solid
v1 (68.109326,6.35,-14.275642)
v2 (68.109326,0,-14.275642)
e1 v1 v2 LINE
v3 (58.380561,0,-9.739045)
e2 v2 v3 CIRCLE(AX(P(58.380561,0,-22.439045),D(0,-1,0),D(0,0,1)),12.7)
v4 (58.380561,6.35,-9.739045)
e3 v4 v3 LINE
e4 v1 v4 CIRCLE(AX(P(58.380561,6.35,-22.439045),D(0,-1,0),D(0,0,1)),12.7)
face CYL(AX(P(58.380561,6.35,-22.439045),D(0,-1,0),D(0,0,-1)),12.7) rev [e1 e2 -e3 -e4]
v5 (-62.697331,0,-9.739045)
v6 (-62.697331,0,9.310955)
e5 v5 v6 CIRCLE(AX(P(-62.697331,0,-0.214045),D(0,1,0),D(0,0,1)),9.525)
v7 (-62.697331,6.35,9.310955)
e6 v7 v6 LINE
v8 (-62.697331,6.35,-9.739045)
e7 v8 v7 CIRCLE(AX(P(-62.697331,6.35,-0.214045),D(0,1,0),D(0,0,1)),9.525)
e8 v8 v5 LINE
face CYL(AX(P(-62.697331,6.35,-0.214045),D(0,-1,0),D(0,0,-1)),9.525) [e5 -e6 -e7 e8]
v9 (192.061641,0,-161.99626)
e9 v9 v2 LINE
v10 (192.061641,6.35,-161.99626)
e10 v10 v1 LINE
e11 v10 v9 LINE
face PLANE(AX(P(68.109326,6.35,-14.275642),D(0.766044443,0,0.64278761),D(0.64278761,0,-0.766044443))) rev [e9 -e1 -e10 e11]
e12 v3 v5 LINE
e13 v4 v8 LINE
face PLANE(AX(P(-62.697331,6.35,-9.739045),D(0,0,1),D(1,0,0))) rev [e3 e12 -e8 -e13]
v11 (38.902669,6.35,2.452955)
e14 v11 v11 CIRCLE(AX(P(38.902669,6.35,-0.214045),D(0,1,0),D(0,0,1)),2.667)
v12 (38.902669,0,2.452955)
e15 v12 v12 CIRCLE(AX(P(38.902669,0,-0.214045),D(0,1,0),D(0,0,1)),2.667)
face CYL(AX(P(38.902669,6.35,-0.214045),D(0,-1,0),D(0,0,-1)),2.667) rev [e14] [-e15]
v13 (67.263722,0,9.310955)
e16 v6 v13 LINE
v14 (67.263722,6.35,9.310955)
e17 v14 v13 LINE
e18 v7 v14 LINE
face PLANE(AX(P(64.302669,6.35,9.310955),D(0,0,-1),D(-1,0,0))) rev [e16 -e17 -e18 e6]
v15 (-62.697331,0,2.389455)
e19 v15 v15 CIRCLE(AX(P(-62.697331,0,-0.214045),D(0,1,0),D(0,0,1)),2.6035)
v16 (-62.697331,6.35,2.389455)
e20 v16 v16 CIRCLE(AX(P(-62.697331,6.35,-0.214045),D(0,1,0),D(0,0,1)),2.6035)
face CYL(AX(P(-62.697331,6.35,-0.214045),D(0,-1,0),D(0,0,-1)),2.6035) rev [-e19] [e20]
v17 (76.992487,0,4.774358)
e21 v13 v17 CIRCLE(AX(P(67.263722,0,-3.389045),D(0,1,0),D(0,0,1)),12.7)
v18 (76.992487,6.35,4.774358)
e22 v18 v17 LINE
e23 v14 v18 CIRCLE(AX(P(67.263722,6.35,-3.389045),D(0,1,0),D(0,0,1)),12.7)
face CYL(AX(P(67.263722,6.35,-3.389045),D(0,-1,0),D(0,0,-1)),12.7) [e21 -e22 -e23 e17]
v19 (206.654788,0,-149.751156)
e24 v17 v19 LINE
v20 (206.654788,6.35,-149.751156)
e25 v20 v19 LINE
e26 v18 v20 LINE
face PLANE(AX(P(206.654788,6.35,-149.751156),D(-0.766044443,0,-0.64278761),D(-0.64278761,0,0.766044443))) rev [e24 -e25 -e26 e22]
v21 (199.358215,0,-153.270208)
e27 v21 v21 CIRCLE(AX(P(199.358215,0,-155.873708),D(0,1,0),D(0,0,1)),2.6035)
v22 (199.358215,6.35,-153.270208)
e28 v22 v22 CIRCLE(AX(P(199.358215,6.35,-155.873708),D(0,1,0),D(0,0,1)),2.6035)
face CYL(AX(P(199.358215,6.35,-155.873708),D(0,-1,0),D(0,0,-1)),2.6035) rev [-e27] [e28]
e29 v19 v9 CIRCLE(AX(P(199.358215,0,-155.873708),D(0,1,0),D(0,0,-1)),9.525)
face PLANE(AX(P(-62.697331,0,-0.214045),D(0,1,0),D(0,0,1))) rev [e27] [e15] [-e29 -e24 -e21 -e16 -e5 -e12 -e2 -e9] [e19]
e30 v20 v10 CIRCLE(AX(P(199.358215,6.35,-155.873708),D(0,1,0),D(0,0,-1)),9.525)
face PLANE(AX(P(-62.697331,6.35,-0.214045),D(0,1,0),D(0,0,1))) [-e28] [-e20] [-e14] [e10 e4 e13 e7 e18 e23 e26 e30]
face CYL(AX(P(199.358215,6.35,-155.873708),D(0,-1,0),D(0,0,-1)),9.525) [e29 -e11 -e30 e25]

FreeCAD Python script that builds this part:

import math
import FreeCAD as App
import Part
import Sketcher
from FreeCAD import Vector
Q = App.Units.Quantity

doc = App.newDocument("Part")
body = doc.addObject("PartDesign::Body", "Body")

sketch1 = body.newObject("Sketcher::SketchObject", "Sketch")
sketch1.AttachmentSupport = (doc.getObject("XZ_Plane"), [""])
sketch1.MapMode = "FlatFace"
sketch1.addGeometry(Part.LineSegment(Vector(192.1, -162, 0), Vector(68.1, -14.3, 0)), False)
sketch1.addGeometry(Part.ArcOfCircle(Part.Circle(Vector(58.4, -22.4, 0), Vector(0, 0, 1), 12.7), math.radians(40), math.radians(90)), False)
sketch1.addGeometry(Part.LineSegment(Vector(58.4, -9.7, 0), Vector(-62.7, -9.7, 0)), False)
sketch1.addGeometry(Part.ArcOfCircle(Part.Circle(Vector(-62.7, -0.2, 0), Vector(0, 0, 1), 9.5), math.radians(90), math.radians(270)), False)
sketch1.addGeometry(Part.LineSegment(Vector(-62.7, 9.3, 0), Vector(67.3, 9.3, 0)), False)
sketch1.addGeometry(Part.ArcOfCircle(Part.Circle(Vector(67.3, -3.4, 0), Vector(0, 0, 1), 12.7), math.radians(40), math.radians(90)), False)
sketch1.addGeometry(Part.LineSegment(Vector(77, 4.8, 0), Vector(206.7, -149.8, 0)), False)
sketch1.addGeometry(Part.ArcOfCircle(Part.Circle(Vector(199.4, -155.9, 0), Vector(0, 0, 1), 9.5), math.radians(-140), math.radians(40)), False)
sketch1.addGeometry(Part.Circle(Vector(38.9, -0.2, 0), Vector(0, 0, 1), 2.7), False)
sketch1.addGeometry(Part.Circle(Vector(-62.7, -0.2, 0), Vector(0, 0, 1), 2.6), False)
sketch1.addGeometry(Part.Circle(Vector(199.4, -155.9, 0), Vector(0, 0, 1), 2.6), False)
sketch1.addConstraint(Sketcher.Constraint("Tangent", 0, 2, 1, 1))
sketch1.addConstraint(Sketcher.Constraint("Tangent", 1, 2, 2, 1))
sketch1.addConstraint(Sketcher.Constraint("Tangent", 2, 2, 3, 2))
sketch1.addConstraint(Sketcher.Constraint("Tangent", 3, 1, 4, 1))
sketch1.addConstraint(Sketcher.Constraint("Tangent", 4, 2, 5, 2))
sketch1.addConstraint(Sketcher.Constraint("Tangent", 5, 1, 6, 1))
sketch1.addConstraint(Sketcher.Constraint("Tangent", 6, 2, 7, 2))
sketch1.addConstraint(Sketcher.Constraint("Tangent", 7, 1, 0, 1))
sketch1.addConstraint(Sketcher.Constraint("Horizontal", 2))
sketch1.addConstraint(Sketcher.Constraint("Horizontal", 4))
sketch1.addConstraint(Sketcher.Constraint("Coincident", 9, 3, 3, 3))
sketch1.addConstraint(Sketcher.Constraint("Coincident", 10, 3, 7, 3))
sketch1.addConstraint(Sketcher.Constraint("Equal", 1, 5))
sketch1.addConstraint(Sketcher.Constraint("Equal", 3, 7))
sketch1.addConstraint(Sketcher.Constraint("Equal", 9, 10))
sketch1.addConstraint(Sketcher.Constraint("Parallel", 0, 6))
sketch1.addConstraint(Sketcher.Constraint("Horizontal", 3, 3, 8, 3))
sketch1.addConstraint(Sketcher.Constraint("Radius", 1, Q("0.5 in")))
sketch1.addConstraint(Sketcher.Constraint("Diameter", 8, Q("0.21 in")))
sketch1.addConstraint(Sketcher.Constraint("Diameter", 9, Q("0.205 in")))
sketch1.addConstraint(Sketcher.Constraint("Angle", 0, Q("130 deg")))
sketch1.addConstraint(Sketcher.Constraint("Radius", 3, Q("0.375 in")))
sketch1.addConstraint(Sketcher.Constraint("DistanceX", 3, 3, 8, 3, Q("4 in")))
sketch1.addConstraint(Sketcher.Constraint("DistanceX", 5, 1, 6, 2, 129.662302))
sketch1.addConstraint(Sketcher.Constraint("DistanceX", 2, 2, 2, 1, 121.077893))
sketch1.addConstraint(Sketcher.Constraint("DistanceX", -1, 1, 1, 3, 58.380561))
sketch1.addConstraint(Sketcher.Constraint("DistanceY", 7, 1, -1, 1, 161.99626))
pad1 = body.newObject("PartDesign::Pad", "Pad")
pad1.Profile = sketch1
pad1.Length = Q("0.25 in")
pad1.Reversed = True

doc.recompute()
